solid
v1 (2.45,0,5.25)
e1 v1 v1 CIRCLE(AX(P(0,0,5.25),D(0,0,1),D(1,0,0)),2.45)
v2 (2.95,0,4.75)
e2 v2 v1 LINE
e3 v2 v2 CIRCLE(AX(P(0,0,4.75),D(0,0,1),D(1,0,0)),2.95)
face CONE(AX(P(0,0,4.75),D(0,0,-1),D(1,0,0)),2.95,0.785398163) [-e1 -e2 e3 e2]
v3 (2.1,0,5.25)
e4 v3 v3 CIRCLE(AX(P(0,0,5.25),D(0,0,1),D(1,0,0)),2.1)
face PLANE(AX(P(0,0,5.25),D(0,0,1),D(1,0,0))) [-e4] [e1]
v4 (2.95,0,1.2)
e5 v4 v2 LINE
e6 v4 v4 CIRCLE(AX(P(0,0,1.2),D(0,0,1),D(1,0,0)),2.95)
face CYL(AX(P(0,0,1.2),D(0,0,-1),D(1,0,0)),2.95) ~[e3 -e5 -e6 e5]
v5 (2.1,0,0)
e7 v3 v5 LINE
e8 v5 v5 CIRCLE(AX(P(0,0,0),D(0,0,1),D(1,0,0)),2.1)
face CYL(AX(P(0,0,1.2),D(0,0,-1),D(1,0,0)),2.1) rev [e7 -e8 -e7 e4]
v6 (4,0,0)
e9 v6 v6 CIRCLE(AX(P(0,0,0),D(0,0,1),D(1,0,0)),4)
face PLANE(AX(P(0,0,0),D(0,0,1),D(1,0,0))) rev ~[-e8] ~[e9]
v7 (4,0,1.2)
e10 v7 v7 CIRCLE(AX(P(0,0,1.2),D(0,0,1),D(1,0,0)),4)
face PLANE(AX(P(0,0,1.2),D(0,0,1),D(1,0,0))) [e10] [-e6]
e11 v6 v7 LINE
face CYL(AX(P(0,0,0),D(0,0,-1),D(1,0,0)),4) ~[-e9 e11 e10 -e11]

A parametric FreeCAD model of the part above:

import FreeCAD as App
import Part
import Sketcher
Q = App.Units.Quantity


def edges_at(feature, points):
    """Names of the edges that pass closest to the given points."""
    edges = feature.Shape.Edges
    near = lambda p: min(range(len(edges)), key=lambda i: edges[i].distToShape(Part.Vertex(*p))[0])
    return sorted({f"Edge{near(p) + 1}" for p in points})

doc = App.newDocument("Part")
body = doc.addObject("PartDesign::Body", "Body")

# Sketch on XY plane
sketch1 = doc.addObject("Sketcher::SketchObject", "Sketch")
body.addObject(sketch1)
sketch1.AttachmentSupport = (doc.XY_Plane, [""])
sketch1.MapMode = "FlatFace"
sketch1.addGeometry(Part.Circle(App.Vector(0, 0, 0), App.Vector(0, 0, 1), 4), False)
sketch1.addGeometry(Part.Circle(App.Vector(0, 0, 0), App.Vector(0, 0, 1), 2.1), False)
sketch1.addConstraint(Sketcher.Constraint("Coincident", 0, 3, -1, 1))
sketch1.addConstraint(Sketcher.Constraint("Coincident", 1, 3, -1, 1))
sketch1.addConstraint(Sketcher.Constraint("Diameter", 0, Q("8 mm")))
sketch1.addConstraint(Sketcher.Constraint("Diameter", 1, Q("4.2 mm")))
pad1 = doc.addObject("PartDesign::Pad", "Pad")
body.addObject(pad1)
pad1.Profile = sketch1
pad1.Length = 1.2

# Sketch on XY plane
sketch2 = doc.addObject("Sketcher::SketchObject", "Sketch001")
body.addObject(sketch2)
sketch2.AttachmentSupport = (doc.XY_Plane, [""])
sketch2.MapMode = "FlatFace"
sketch2.AttachmentOffset = App.Placement(App.Vector(0, 0, 1.2), App.Rotation())
sketch2.addGeometry(Part.Circle(App.Vector(0, 0, 0), App.Vector(0, 0, 1), 3), False)
sketch2.addGeometry(Part.Circle(App.Vector(0, 0, 0), App.Vector(0, 0, 1), 2.1), False)
sketch2.addConstraint(Sketcher.Constraint("Coincident", 0, 3, -1, 1))
sketch2.addConstraint(Sketcher.Constraint("Coincident", 1, 3, -1, 1))
sketch2.addConstraint(Sketcher.Constraint("Diameter", 0, Q("5.9 mm")))
sketch2.addConstraint(Sketcher.Constraint("Diameter", 1, Q("4.2 mm")))
pad2 = doc.addObject("PartDesign::Pad", "Pad001")
body.addObject(pad2)
pad2.Profile = sketch2
pad2.Length = 4.05
doc.recompute()

chamfer = doc.addObject("PartDesign::Chamfer", "Chamfer")
body.addObject(chamfer)
chamfer.Base = (pad2, edges_at(pad2, [(-2.95, 0, 5.25)]))
chamfer.Size = 0.5

doc.recompute()
